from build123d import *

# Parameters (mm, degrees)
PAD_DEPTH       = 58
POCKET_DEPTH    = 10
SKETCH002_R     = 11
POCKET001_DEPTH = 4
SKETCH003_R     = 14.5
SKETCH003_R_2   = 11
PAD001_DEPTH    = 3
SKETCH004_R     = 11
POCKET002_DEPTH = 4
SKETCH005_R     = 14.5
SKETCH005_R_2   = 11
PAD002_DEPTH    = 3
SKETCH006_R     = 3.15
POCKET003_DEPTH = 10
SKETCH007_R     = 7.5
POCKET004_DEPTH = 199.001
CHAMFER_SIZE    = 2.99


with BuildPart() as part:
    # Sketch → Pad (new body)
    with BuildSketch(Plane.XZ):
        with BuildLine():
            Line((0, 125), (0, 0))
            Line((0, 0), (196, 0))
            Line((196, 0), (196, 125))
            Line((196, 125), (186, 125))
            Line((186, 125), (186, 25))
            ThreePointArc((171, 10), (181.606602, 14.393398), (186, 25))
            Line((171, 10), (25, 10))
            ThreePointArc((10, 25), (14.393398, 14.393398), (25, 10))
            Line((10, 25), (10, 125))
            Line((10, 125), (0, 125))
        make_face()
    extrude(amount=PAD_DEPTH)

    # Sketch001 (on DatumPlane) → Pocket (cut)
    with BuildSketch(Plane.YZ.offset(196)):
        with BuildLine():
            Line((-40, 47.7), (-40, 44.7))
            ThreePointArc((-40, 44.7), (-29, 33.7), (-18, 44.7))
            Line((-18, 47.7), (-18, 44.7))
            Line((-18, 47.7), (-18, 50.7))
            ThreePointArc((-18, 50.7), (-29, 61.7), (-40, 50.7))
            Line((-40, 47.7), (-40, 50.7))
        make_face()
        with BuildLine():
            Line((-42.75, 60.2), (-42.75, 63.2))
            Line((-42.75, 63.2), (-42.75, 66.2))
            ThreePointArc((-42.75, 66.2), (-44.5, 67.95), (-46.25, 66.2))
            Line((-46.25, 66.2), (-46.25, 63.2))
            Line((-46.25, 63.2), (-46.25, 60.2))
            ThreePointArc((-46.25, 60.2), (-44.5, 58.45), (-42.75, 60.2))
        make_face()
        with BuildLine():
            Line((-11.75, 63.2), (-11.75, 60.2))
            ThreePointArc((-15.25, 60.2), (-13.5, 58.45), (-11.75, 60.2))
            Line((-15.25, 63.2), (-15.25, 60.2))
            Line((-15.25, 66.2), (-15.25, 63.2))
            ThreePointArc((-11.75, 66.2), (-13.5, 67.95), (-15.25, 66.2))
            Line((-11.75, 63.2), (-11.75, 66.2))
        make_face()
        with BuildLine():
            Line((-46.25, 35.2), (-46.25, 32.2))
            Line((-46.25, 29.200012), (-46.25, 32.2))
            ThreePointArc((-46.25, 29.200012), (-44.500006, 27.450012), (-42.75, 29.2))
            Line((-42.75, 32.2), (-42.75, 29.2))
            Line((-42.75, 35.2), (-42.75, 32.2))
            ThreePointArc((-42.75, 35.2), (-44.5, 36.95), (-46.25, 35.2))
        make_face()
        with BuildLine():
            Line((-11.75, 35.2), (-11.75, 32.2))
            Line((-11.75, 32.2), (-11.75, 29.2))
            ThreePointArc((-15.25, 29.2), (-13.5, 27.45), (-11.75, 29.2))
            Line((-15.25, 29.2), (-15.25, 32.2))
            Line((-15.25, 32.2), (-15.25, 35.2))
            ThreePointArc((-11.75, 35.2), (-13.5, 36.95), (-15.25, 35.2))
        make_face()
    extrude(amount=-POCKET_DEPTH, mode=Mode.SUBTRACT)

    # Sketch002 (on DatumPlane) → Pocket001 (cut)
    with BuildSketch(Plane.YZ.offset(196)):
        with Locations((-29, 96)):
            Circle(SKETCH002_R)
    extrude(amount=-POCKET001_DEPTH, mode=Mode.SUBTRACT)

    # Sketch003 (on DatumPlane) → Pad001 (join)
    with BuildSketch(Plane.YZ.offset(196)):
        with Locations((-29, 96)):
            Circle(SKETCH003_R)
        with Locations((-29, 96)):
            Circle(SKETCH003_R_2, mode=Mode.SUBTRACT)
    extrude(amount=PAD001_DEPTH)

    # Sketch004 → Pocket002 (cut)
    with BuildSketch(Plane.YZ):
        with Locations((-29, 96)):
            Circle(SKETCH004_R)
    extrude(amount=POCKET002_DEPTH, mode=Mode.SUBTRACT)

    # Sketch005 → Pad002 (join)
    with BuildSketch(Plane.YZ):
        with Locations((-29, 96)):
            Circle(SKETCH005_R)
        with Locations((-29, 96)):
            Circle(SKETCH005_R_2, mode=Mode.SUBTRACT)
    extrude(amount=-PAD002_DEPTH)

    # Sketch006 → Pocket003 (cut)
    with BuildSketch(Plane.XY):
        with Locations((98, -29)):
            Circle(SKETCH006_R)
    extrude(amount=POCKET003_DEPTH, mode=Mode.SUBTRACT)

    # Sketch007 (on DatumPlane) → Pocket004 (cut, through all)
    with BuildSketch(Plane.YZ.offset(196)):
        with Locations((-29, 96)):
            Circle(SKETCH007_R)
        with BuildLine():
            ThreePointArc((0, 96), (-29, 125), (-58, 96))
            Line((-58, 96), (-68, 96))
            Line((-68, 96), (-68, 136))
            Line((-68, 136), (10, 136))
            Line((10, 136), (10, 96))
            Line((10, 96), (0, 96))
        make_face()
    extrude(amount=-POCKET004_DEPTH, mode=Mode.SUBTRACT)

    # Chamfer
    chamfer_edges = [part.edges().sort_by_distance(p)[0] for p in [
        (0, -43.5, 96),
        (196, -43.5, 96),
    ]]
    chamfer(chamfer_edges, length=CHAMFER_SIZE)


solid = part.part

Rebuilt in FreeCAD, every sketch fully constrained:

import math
import FreeCAD as App
import Part
import Sketcher
Q = App.Units.Quantity


def edges_at(feature, points):
    """Names of the edges that pass closest to the given points."""
    edges = feature.Shape.Edges
    near = lambda p: min(range(len(edges)), key=lambda i: edges[i].distToShape(Part.Vertex(*p))[0])
    return sorted({f"Edge{near(p) + 1}" for p in points})

doc = App.newDocument("Part")
body = doc.addObject("PartDesign::Body", "Body")

# Sketch on XZ plane
sketch1 = body.newObject("Sketcher::SketchObject", "Sketch")
sketch1.AttachmentSupport = (doc.getObject("XZ_Plane"), [""])
sketch1.MapMode = "FlatFace"
sketch1.addGeometry([
    Part.LineSegment(App.Vector(0, 125, 0), App.Vector(0, 0, 0)),  # 0
    Part.LineSegment(App.Vector(0, 0, 0), App.Vector(196, 0, 0)),  # 1
    Part.LineSegment(App.Vector(196, 0, 0), App.Vector(196, 125, 0)),  # 2
    Part.LineSegment(App.Vector(196, 125, 0), App.Vector(186, 125, 0)),  # 3
    Part.LineSegment(App.Vector(186, 125, 0), App.Vector(186, 25, 0)),  # 4
    Part.ArcOfCircle(Part.Circle(App.Vector(171, 25, 0), App.Vector(0, 0, 1), 15), math.radians(-90), math.radians(0)),  # 5
    Part.LineSegment(App.Vector(171, 10, 0), App.Vector(25, 10, 0)),  # 6
    Part.ArcOfCircle(Part.Circle(App.Vector(25, 25, 0), App.Vector(0, 0, 1), 15), math.radians(180), math.radians(270)),  # 7
    Part.LineSegment(App.Vector(10, 25, 0), App.Vector(10, 125, 0)),  # 8
    Part.LineSegment(App.Vector(10, 125, 0), App.Vector(0, 125, 0)),  # 9
], False)
sketch1.addConstraint([
    Sketcher.Constraint("Coincident", 0, 2, 1, 1),
    Sketcher.Constraint("Coincident", 1, 2, 2, 1),
    Sketcher.Constraint("Coincident", 2, 2, 3, 1),
    Sketcher.Constraint("Coincident", 3, 2, 4, 1),
    Sketcher.Constraint("Tangent", 4, 2, 5, 2),
    Sketcher.Constraint("Tangent", 5, 1, 6, 1),
    Sketcher.Constraint("Tangent", 6, 2, 7, 2),
    Sketcher.Constraint("Tangent", 7, 1, 8, 1),
    Sketcher.Constraint("Coincident", 8, 2, 9, 1),
    Sketcher.Constraint("Coincident", 9, 2, 0, 1),
    Sketcher.Constraint("Vertical", 0),
    Sketcher.Constraint("Horizontal", 1),
    Sketcher.Constraint("Vertical", 2),
    Sketcher.Constraint("Horizontal", 3),
    Sketcher.Constraint("Vertical", 4),
    Sketcher.Constraint("Horizontal", 6),
    Sketcher.Constraint("Vertical", 8),
    Sketcher.Constraint("Horizontal", 9),
    Sketcher.Constraint("Coincident", 0, 2, -1, 1),
    Sketcher.Constraint("Equal", 5, 7),
    Sketcher.Constraint("Horizontal", 3, 2, 8, 2),
    Sketcher.Constraint("Equal", 3, 9),
    Sketcher.Constraint("Radius", 5, Q("14.999999 mm")),
    Sketcher.Constraint("DistanceX", 1, 1, 1, 2, Q("196 mm")),
    Sketcher.Constraint("DistanceX", 3, 2, 3, 1, Q("10 mm")),
    Sketcher.Constraint("DistanceY", 0, 2, 0, 1, Q("125 mm")),
    Sketcher.Constraint("DistanceY", 4, 2, 4, 1, Q("100 mm")),
])
pad1 = body.newObject("PartDesign::Pad", "Pad")
pad1.Profile = sketch1
pad1.Length = 58

# Sketch on YZ plane
sketch2 = body.newObject("Sketcher::SketchObject", "Sketch001")
sketch2.AttachmentSupport = (doc.getObject("YZ_Plane"), [""])
sketch2.MapMode = "FlatFace"
sketch2.AttachmentOffset = App.Placement(App.Vector(0, 0, 196), App.Rotation())
sketch2.addGeometry([
    Part.ArcOfCircle(Part.Circle(App.Vector(-29, 44.7, 0), App.Vector(0, 0, 1), 11), math.radians(180), math.radians(360)),  # 0
    Part.LineSegment(App.Vector(-18, 44.7, 0), App.Vector(-18, 50.7, 0)),  # 1
    Part.ArcOfCircle(Part.Circle(App.Vector(-29, 50.7, 0), App.Vector(0, 0, 1), 11), math.radians(0), math.radians(180)),  # 2
    Part.LineSegment(App.Vector(-40, 50.7, 0), App.Vector(-40, 44.7, 0)),  # 3
    Part.LineSegment(App.Vector(-42.8, 60.2, 0), App.Vector(-42.8, 66.2, 0)),  # 4
    Part.ArcOfCircle(Part.Circle(App.Vector(-44.5, 66.2, 0), App.Vector(0, 0, 1), 1.8), math.radians(0), math.radians(180)),  # 5
    Part.LineSegment(App.Vector(-46.2, 66.2, 0), App.Vector(-46.2, 60.2, 0)),  # 6
    Part.ArcOfCircle(Part.Circle(App.Vector(-44.5, 60.2, 0), App.Vector(0, 0, 1), 1.8), math.radians(180), math.radians(360)),  # 7
    Part.LineSegment(App.Vector(-11.8, 60.2, 0), App.Vector(-11.8, 66.2, 0)),  # 8
    Part.ArcOfCircle(Part.Circle(App.Vector(-13.5, 66.2, 0), App.Vector(0, 0, 1), 1.8), math.radians(0), math.radians(180)),  # 9
    Part.LineSegment(App.Vector(-15.2, 66.2, 0), App.Vector(-15.2, 60.2, 0)),  # 10
    Part.ArcOfCircle(Part.Circle(App.Vector(-13.5, 60.2, 0), App.Vector(0, 0, 1), 1.8), math.radians(180), math.radians(360)),  # 11
    Part.LineSegment(App.Vector(-46.2, 35.2, 0), App.Vector(-46.2, 29.2, 0)),  # 12
    Part.ArcOfCircle(Part.Circle(App.Vector(-44.5, 29.2, 0), App.Vector(0, 0, 1), 1.8), math.radians(180), math.radians(360)),  # 13
    Part.LineSegment(App.Vector(-42.8, 29.2, 0), App.Vector(-42.8, 35.2, 0)),  # 14
    Part.ArcOfCircle(Part.Circle(App.Vector(-44.5, 35.2, 0), App.Vector(0, 0, 1), 1.8), math.radians(0), math.radians(180)),  # 15
    Part.LineSegment(App.Vector(-11.8, 29.2, 0), App.Vector(-11.8, 35.2, 0)),  # 16
    Part.ArcOfCircle(Part.Circle(App.Vector(-13.5, 35.2, 0), App.Vector(0, 0, 1), 1.8), math.radians(0), math.radians(180)),  # 17
    Part.LineSegment(App.Vector(-15.2, 35.2, 0), App.Vector(-15.2, 29.2, 0)),  # 18
    Part.ArcOfCircle(Part.Circle(App.Vector(-13.5, 29.2, 0), App.Vector(0, 0, 1), 1.8), math.radians(180), math.radians(360)),  # 19
], False)
sketch2.addConstraint([
    Sketcher.Constraint("Tangent", 0, 2, 1, 1),
    Sketcher.Constraint("Tangent", 1, 2, 2, 1),
    Sketcher.Constraint("Tangent", 2, 2, 3, 1),
    Sketcher.Constraint("Tangent", 3, 2, 0, 1),
    Sketcher.Constraint("Tangent", 4, 2, 5, 1),
    Sketcher.Constraint("Tangent", 5, 2, 6, 1),
    Sketcher.Constraint("Tangent", 6, 2, 7, 1),
    Sketcher.Constraint("Tangent", 7, 2, 4, 1),
    Sketcher.Constraint("Tangent", 8, 2, 9, 1),
    Sketcher.Constraint("Tangent", 9, 2, 10, 1),
    Sketcher.Constraint("Tangent", 10, 2, 11, 1),
    Sketcher.Constraint("Tangent", 11, 2, 8, 1),
    Sketcher.Constraint("Tangent", 12, 2, 13, 1),
    Sketcher.Constraint("Coincident", 13, 2, 14, 1),
    Sketcher.Constraint("Tangent", 14, 2, 15, 1),
    Sketcher.Constraint("Tangent", 15, 2, 12, 1),
    Sketcher.Constraint("Tangent", 16, 2, 17, 1),
    Sketcher.Constraint("Tangent", 17, 2, 18, 1),
    Sketcher.Constraint("Tangent", 18, 2, 19, 1),
    Sketcher.Constraint("Tangent", 19, 2, 16, 1),
    Sketcher.Constraint("Vertical", 1),
    Sketcher.Constraint("Vertical", 3),
    Sketcher.Constraint("Vertical", 4),
    Sketcher.Constraint("Vertical", 6),
    Sketcher.Constraint("Vertical", 8),
    Sketcher.Constraint("Vertical", 10),
    Sketcher.Constraint("Vertical", 12),
    Sketcher.Constraint("Vertical", 14),
    Sketcher.Constraint("Vertical", 16),
    Sketcher.Constraint("Vertical", 18),
    Sketcher.Constraint("Equal", 7, 9),
    Sketcher.Constraint("Equal", 11, 13),
    Sketcher.Constraint("Equal", 15, 17),
    Sketcher.Constraint("Horizontal", 5, 3, 9, 3),
    Sketcher.Constraint("Horizontal", 7, 3, 11, 3),
    Sketcher.Constraint("Horizontal", 15, 3, 17, 3),
    Sketcher.Constraint("Horizontal", 19, 3, 13, 2),
    Sketcher.Constraint("Vertical", 7, 3, 13, 3),
    Sketcher.Constraint("Vertical", 11, 3, 17, 3),
    Sketcher.Constraint("Equal", 3, 4),
    Sketcher.Constraint("Equal", 10, 14),
    Sketcher.Constraint("Radius", 0, Q("11 mm")),
    Sketcher.Constraint("DistanceY", 1, 1, 1, 2, Q("6 mm")),
    Sketcher.Constraint("Radius", 5, Q("1.75 mm")),
    Sketcher.Constraint("DistanceX", 0, 3, -1, 1, Q("29 mm")),
    Sketcher.Constraint("DistanceX", 5, 3, 9, 3, Q("31 mm")),
    Sketcher.Constraint("DistanceY", 15, 3, 7, 3, Q("25 mm")),
    Sketcher.Constraint("DistanceY", -1, 1, 0, 3, Q("44.7 mm")),
    Sketcher.Constraint("DistanceX", 5, 3, -1, 1, Q("44.5 mm")),
    Sketcher.Constraint("DistanceY", -1, 1, 5, 3, Q("66.2 mm")),
    Sketcher.Constraint("DistanceY", 12, 2, 12, 1, Q("5.999988 mm")),
])
pocket1 = body.newObject("PartDesign::Pocket", "Pocket")
pocket1.Profile = sketch2
pocket1.Length = 10

# Sketch on YZ plane
sketch3 = body.newObject("Sketcher::SketchObject", "Sketch002")
sketch3.AttachmentSupport = (doc.getObject("YZ_Plane"), [""])
sketch3.MapMode = "FlatFace"
sketch3.AttachmentOffset = App.Placement(App.Vector(0, 0, 196), App.Rotation())
sketch3.addGeometry(Part.Circle(App.Vector(-29, 96, 0), App.Vector(0, 0, 1), 11), False)
sketch3.addConstraint([
    Sketcher.Constraint("Diameter", 0, Q("22 mm")),
    Sketcher.Constraint("DistanceX", 0, 3, -1, 1, Q("29 mm")),
    Sketcher.Constraint("DistanceY", -1, 1, 0, 3, Q("96 mm")),
])
pocket2 = body.newObject("PartDesign::Pocket", "Pocket001")
pocket2.Profile = sketch3
pocket2.Length = 4

# Sketch on YZ plane
sketch4 = body.newObject("Sketcher::SketchObject", "Sketch003")
sketch4.AttachmentSupport = (doc.getObject("YZ_Plane"), [""])
sketch4.MapMode = "FlatFace"
sketch4.AttachmentOffset = App.Placement(App.Vector(0, 0, 196), App.Rotation())
sketch4.addGeometry([
    Part.Circle(App.Vector(-29, 96, 0), App.Vector(0, 0, 1), 14),
    Part.Circle(App.Vector(-29, 96, 0), App.Vector(0, 0, 1), 11),
], False)
sketch4.addConstraint([
    Sketcher.Constraint("Coincident", 1, 3, 0, 3),
    Sketcher.Constraint("Diameter", 0, Q("29 mm")),
    Sketcher.Constraint("Diameter", 1, Q("22 mm")),
    Sketcher.Constraint("DistanceX", 0, 3, -1, 1, Q("29 mm")),
    Sketcher.Constraint("DistanceY", -1, 1, 0, 3, Q("96 mm")),
])
pad2 = body.newObject("PartDesign::Pad", "Pad001")
pad2.Profile = sketch4
pad2.Length = 3

# Sketch on YZ plane
sketch5 = body.newObject("Sketcher::SketchObject", "Sketch004")
sketch5.AttachmentSupport = (doc.getObject("YZ_Plane"), [""])
sketch5.MapMode = "FlatFace"
sketch5.addGeometry(Part.Circle(App.Vector(-29, 96, 0), App.Vector(0, 0, 1), 11), False)
sketch5.addConstraint([
    Sketcher.Constraint("Diameter", 0, Q("22 mm")),
    Sketcher.Constraint("DistanceX", 0, 3, -1, 1, Q("29 mm")),
    Sketcher.Constraint("DistanceY", -1, 1, 0, 3, Q("96 mm")),
])
pocket3 = body.newObject("PartDesign::Pocket", "Pocket002")
pocket3.Profile = sketch5
pocket3.Length = 4
pocket3.Reversed = True

# Sketch on YZ plane
sketch6 = body.newObject("Sketcher::SketchObject", "Sketch005")
sketch6.AttachmentSupport = (doc.getObject("YZ_Plane"), [""])
sketch6.MapMode = "FlatFace"
sketch6.addGeometry([
    Part.Circle(App.Vector(-29, 96, 0), App.Vector(0, 0, 1), 14),
    Part.Circle(App.Vector(-29, 96, 0), App.Vector(0, 0, 1), 11),
], False)
sketch6.addConstraint([
    Sketcher.Constraint("Coincident", 1, 3, 0, 3),
    Sketcher.Constraint("Diameter", 0, Q("29 mm")),
    Sketcher.Constraint("Diameter", 1, Q("22 mm")),
    Sketcher.Constraint("DistanceX", 0, 3, -1, 1, Q("29 mm")),
    Sketcher.Constraint("DistanceY", -1, 1, 0, 3, Q("96 mm")),
])
pad3 = body.newObject("PartDesign::Pad", "Pad002")
pad3.Profile = sketch6
pad3.Length = 3
pad3.Reversed = True

# Sketch on XY plane
sketch7 = body.newObject("Sketcher::SketchObject", "Sketch006")
sketch7.AttachmentSupport = (doc.getObject("XY_Plane"), [""])
sketch7.MapMode = "FlatFace"
sketch7.addGeometry(Part.Circle(App.Vector(98, -29, 0), App.Vector(0, 0, 1), 3.1), False)
sketch7.addConstraint([
    Sketcher.Constraint("Diameter", 0, Q("6.3 mm")),
    Sketcher.Constraint("DistanceX", -1, 1, 0, 3, Q("98 mm")),
    Sketcher.Constraint("DistanceY", 0, 3, -1, 1, Q("29 mm")),
])
pocket4 = body.newObject("PartDesign::Pocket", "Pocket003")
pocket4.Profile = sketch7
pocket4.Length = 10
pocket4.Reversed = True

# Sketch on YZ plane
sketch8 = body.newObject("Sketcher::SketchObject", "Sketch007")
sketch8.AttachmentSupport = (doc.getObject("YZ_Plane"), [""])
sketch8.MapMode = "FlatFace"
sketch8.AttachmentOffset = App.Placement(App.Vector(0, 0, 196), App.Rotation())
sketch8.addGeometry([
    Part.Circle(App.Vector(-29, 96, 0), App.Vector(0, 0, 1), 8),  # 0
    Part.ArcOfCircle(Part.Circle(App.Vector(-29, 96, 0), App.Vector(0, 0, 1), 29), math.radians(0), math.radians(180)),  # 1
    Part.LineSegment(App.Vector(0, 96, 0), App.Vector(10, 96, 0)),  # 2
    Part.LineSegment(App.Vector(10, 96, 0), App.Vector(10, 136, 0)),  # 3
    Part.LineSegment(App.Vector(10, 136, 0), App.Vector(-68, 136, 0)),  # 4
    Part.LineSegment(App.Vector(-68, 136, 0), App.Vector(-68, 96, 0)),  # 5
    Part.LineSegment(App.Vector(-68, 96, 0), App.Vector(-58, 96, 0)),  # 6
], False)
sketch8.addConstraint([
    Sketcher.Constraint("Coincident", 1, 1, 2, 1),
    Sketcher.Constraint("Coincident", 2, 2, 3, 1),
    Sketcher.Constraint("Coincident", 3, 2, 4, 1),
    Sketcher.Constraint("Coincident", 4, 2, 5, 1),
    Sketcher.Constraint("Coincident", 5, 2, 6, 1),
    Sketcher.Constraint("Coincident", 6, 2, 1, 2),
    Sketcher.Constraint("Horizontal", 2),
    Sketcher.Constraint("Vertical", 3),
    Sketcher.Constraint("Horizontal", 4),
    Sketcher.Constraint("Vertical", 5),
    Sketcher.Constraint("Horizontal", 6),
    Sketcher.Constraint("Coincident", 1, 3, 0, 3),
    Sketcher.Constraint("PointOnObject", 1, 1, -2),
    Sketcher.Constraint("Horizontal", 0, 3, 1, 1),
    Sketcher.Constraint("Horizontal", 2, 2, 5, 2),
    Sketcher.Constraint("Equal", 2, 6),
    Sketcher.Constraint("Diameter", 0, Q("15 mm")),
    Sketcher.Constraint("Radius", 1, Q("29 mm")),
    Sketcher.Constraint("DistanceX", 2, 1, 2, 2, Q("10 mm")),
    Sketcher.Constraint("DistanceY", 3, 1, 3, 2, Q("40 mm")),
    Sketcher.Constraint("DistanceY", -1, 1, 0, 3, Q("96 mm")),
])
pocket5 = body.newObject("PartDesign::Pocket", "Pocket004")
pocket5.Profile = sketch8
pocket5.Type = "ThroughAll"
doc.recompute()

chamfer = body.newObject("PartDesign::Chamfer", "Chamfer")
chamfer.Base = (pocket5, edges_at(pocket5, [(0, -43.5, 96), (196, -43.5, 96)]))
chamfer.Size = 2.99

doc.recompute()
